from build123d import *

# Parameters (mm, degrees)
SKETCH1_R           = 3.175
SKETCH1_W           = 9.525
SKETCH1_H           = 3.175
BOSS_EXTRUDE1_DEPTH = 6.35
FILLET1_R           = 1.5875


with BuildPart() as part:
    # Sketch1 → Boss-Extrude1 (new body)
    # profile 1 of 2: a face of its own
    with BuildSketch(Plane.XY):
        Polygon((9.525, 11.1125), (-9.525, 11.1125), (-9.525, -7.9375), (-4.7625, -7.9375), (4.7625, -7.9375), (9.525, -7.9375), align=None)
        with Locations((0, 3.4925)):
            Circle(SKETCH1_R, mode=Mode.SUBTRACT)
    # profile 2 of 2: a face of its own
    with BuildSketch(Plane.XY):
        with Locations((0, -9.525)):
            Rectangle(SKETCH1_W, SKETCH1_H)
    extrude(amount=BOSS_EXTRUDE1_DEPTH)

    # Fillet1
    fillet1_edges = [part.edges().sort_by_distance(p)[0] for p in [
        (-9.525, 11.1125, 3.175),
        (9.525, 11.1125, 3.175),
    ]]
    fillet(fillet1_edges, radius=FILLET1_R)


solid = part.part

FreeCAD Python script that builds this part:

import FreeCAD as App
import Part
import Sketcher
from FreeCAD import Vector
Q = App.Units.Quantity


def edges_at(feature, points):
    """Names of the edges that pass closest to the given points."""
    edges = feature.Shape.Edges
    near = lambda p: min(range(len(edges)), key=lambda i: edges[i].distToShape(Part.Vertex(*p))[0])
    return sorted({f"Edge{near(p) + 1}" for p in points})


def add_polygon(sketch, points):
    """Adds a closed chain of lines whose ends are joined by coincident constraints."""
    first, n = sketch.GeometryCount, len(points)
    for a, b in zip(points, points[1:] + points[:1]):
        sketch.addGeometry(Part.LineSegment(App.Vector(*a, 0), App.Vector(*b, 0)), False)
    for i in range(n):
        sketch.addConstraint(Sketcher.Constraint("Coincident", first + i, 2, first + (i + 1) % n, 1))

doc = App.newDocument("Part")
params = doc.addObject("Spreadsheet::Sheet", "Params")
for row, (alias, value) in enumerate([
    ("sketch1_diameter", "0.25 in"),
    ("sketch1_width", "0.75 in"),
    ("sketch1_width2", "0.1875 in"),
    ("sketch1_height", "0.125 in"),
    ("pad1_length", "0.25 in"),
    ("fillet_radius", "0.0625 in"),
], start=1):
    params.set(f"A{row}", alias)
    params.set(f"B{row}", "=" + value)
    params.setAlias(f"B{row}", alias)

body = doc.addObject("PartDesign::Body", "Body")

sketch1 = doc.addObject("Sketcher::SketchObject", "Sketch")
body.addObject(sketch1)
sketch1.AttachmentSupport = (doc.XY_Plane, [""])
sketch1.MapMode = "FlatFace"
add_polygon(sketch1, [(9.525, 11.1125), (-9.525, 11.1125), (-9.525, -7.9375), (-4.7625, -7.9375), (-4.7625, -11.1125), (4.7625, -11.1125), (4.7625, -7.9375), (9.525, -7.9375)])
sketch1.addGeometry(Part.Circle(Vector(0, 3.4925, 0), Vector(0, 0, 1), 3.175), False)
sketch1.addConstraint([
    Sketcher.Constraint("Horizontal", 0),
    Sketcher.Constraint("Vertical", 1),
    Sketcher.Constraint("Horizontal", 2),
    Sketcher.Constraint("Vertical", 3),
    Sketcher.Constraint("Horizontal", 4),
    Sketcher.Constraint("Vertical", 5),
    Sketcher.Constraint("Horizontal", 6),
    Sketcher.Constraint("Vertical", 7),
    Sketcher.Constraint("Symmetric", 2, 2, 5, 2, -2),
    Sketcher.Constraint("PointOnObject", 8, 3, -2),
    Sketcher.Constraint("Equal", 2, 6),
    Sketcher.Constraint("Equal", 0, 1),
    Sketcher.Constraint("Diameter", 8, Q("0.25 in")),
    Sketcher.Constraint("DistanceX", 0, 2, 0, 1, Q("0.75 in")),
    Sketcher.Constraint("DistanceY", 8, 3, 0, 2, Q("0.3 in")),
    Sketcher.Constraint("DistanceX", 2, 1, 2, 2, Q("0.1875 in")),
    Sketcher.Constraint("DistanceY", 3, 2, 3, 1, Q("0.125 in")),
    Sketcher.Constraint("DistanceY", -1, 1, 0, 2, Q("0.4375 in")),
])
sketch1.setExpression("Constraints[20]", "Params.sketch1_diameter")
sketch1.setExpression("Constraints[21]", "Params.sketch1_width")
sketch1.setExpression("Constraints[23]", "Params.sketch1_width2")
sketch1.setExpression("Constraints[24]", "Params.sketch1_height")
pad1 = doc.addObject("PartDesign::Pad", "Pad")
body.addObject(pad1)
pad1.Profile = sketch1
pad1.setExpression("Length", "Params.pad1_length")
doc.recompute()

fillet = doc.addObject("PartDesign::Fillet", "Fillet")
body.addObject(fillet)
fillet.Base = (pad1, edges_at(pad1, [(-9.525, 11.113, 3.175), (9.525, 11.113, 3.175)]))
fillet.setExpression("Radius", "Params.fillet_radius")

doc.recompute()
